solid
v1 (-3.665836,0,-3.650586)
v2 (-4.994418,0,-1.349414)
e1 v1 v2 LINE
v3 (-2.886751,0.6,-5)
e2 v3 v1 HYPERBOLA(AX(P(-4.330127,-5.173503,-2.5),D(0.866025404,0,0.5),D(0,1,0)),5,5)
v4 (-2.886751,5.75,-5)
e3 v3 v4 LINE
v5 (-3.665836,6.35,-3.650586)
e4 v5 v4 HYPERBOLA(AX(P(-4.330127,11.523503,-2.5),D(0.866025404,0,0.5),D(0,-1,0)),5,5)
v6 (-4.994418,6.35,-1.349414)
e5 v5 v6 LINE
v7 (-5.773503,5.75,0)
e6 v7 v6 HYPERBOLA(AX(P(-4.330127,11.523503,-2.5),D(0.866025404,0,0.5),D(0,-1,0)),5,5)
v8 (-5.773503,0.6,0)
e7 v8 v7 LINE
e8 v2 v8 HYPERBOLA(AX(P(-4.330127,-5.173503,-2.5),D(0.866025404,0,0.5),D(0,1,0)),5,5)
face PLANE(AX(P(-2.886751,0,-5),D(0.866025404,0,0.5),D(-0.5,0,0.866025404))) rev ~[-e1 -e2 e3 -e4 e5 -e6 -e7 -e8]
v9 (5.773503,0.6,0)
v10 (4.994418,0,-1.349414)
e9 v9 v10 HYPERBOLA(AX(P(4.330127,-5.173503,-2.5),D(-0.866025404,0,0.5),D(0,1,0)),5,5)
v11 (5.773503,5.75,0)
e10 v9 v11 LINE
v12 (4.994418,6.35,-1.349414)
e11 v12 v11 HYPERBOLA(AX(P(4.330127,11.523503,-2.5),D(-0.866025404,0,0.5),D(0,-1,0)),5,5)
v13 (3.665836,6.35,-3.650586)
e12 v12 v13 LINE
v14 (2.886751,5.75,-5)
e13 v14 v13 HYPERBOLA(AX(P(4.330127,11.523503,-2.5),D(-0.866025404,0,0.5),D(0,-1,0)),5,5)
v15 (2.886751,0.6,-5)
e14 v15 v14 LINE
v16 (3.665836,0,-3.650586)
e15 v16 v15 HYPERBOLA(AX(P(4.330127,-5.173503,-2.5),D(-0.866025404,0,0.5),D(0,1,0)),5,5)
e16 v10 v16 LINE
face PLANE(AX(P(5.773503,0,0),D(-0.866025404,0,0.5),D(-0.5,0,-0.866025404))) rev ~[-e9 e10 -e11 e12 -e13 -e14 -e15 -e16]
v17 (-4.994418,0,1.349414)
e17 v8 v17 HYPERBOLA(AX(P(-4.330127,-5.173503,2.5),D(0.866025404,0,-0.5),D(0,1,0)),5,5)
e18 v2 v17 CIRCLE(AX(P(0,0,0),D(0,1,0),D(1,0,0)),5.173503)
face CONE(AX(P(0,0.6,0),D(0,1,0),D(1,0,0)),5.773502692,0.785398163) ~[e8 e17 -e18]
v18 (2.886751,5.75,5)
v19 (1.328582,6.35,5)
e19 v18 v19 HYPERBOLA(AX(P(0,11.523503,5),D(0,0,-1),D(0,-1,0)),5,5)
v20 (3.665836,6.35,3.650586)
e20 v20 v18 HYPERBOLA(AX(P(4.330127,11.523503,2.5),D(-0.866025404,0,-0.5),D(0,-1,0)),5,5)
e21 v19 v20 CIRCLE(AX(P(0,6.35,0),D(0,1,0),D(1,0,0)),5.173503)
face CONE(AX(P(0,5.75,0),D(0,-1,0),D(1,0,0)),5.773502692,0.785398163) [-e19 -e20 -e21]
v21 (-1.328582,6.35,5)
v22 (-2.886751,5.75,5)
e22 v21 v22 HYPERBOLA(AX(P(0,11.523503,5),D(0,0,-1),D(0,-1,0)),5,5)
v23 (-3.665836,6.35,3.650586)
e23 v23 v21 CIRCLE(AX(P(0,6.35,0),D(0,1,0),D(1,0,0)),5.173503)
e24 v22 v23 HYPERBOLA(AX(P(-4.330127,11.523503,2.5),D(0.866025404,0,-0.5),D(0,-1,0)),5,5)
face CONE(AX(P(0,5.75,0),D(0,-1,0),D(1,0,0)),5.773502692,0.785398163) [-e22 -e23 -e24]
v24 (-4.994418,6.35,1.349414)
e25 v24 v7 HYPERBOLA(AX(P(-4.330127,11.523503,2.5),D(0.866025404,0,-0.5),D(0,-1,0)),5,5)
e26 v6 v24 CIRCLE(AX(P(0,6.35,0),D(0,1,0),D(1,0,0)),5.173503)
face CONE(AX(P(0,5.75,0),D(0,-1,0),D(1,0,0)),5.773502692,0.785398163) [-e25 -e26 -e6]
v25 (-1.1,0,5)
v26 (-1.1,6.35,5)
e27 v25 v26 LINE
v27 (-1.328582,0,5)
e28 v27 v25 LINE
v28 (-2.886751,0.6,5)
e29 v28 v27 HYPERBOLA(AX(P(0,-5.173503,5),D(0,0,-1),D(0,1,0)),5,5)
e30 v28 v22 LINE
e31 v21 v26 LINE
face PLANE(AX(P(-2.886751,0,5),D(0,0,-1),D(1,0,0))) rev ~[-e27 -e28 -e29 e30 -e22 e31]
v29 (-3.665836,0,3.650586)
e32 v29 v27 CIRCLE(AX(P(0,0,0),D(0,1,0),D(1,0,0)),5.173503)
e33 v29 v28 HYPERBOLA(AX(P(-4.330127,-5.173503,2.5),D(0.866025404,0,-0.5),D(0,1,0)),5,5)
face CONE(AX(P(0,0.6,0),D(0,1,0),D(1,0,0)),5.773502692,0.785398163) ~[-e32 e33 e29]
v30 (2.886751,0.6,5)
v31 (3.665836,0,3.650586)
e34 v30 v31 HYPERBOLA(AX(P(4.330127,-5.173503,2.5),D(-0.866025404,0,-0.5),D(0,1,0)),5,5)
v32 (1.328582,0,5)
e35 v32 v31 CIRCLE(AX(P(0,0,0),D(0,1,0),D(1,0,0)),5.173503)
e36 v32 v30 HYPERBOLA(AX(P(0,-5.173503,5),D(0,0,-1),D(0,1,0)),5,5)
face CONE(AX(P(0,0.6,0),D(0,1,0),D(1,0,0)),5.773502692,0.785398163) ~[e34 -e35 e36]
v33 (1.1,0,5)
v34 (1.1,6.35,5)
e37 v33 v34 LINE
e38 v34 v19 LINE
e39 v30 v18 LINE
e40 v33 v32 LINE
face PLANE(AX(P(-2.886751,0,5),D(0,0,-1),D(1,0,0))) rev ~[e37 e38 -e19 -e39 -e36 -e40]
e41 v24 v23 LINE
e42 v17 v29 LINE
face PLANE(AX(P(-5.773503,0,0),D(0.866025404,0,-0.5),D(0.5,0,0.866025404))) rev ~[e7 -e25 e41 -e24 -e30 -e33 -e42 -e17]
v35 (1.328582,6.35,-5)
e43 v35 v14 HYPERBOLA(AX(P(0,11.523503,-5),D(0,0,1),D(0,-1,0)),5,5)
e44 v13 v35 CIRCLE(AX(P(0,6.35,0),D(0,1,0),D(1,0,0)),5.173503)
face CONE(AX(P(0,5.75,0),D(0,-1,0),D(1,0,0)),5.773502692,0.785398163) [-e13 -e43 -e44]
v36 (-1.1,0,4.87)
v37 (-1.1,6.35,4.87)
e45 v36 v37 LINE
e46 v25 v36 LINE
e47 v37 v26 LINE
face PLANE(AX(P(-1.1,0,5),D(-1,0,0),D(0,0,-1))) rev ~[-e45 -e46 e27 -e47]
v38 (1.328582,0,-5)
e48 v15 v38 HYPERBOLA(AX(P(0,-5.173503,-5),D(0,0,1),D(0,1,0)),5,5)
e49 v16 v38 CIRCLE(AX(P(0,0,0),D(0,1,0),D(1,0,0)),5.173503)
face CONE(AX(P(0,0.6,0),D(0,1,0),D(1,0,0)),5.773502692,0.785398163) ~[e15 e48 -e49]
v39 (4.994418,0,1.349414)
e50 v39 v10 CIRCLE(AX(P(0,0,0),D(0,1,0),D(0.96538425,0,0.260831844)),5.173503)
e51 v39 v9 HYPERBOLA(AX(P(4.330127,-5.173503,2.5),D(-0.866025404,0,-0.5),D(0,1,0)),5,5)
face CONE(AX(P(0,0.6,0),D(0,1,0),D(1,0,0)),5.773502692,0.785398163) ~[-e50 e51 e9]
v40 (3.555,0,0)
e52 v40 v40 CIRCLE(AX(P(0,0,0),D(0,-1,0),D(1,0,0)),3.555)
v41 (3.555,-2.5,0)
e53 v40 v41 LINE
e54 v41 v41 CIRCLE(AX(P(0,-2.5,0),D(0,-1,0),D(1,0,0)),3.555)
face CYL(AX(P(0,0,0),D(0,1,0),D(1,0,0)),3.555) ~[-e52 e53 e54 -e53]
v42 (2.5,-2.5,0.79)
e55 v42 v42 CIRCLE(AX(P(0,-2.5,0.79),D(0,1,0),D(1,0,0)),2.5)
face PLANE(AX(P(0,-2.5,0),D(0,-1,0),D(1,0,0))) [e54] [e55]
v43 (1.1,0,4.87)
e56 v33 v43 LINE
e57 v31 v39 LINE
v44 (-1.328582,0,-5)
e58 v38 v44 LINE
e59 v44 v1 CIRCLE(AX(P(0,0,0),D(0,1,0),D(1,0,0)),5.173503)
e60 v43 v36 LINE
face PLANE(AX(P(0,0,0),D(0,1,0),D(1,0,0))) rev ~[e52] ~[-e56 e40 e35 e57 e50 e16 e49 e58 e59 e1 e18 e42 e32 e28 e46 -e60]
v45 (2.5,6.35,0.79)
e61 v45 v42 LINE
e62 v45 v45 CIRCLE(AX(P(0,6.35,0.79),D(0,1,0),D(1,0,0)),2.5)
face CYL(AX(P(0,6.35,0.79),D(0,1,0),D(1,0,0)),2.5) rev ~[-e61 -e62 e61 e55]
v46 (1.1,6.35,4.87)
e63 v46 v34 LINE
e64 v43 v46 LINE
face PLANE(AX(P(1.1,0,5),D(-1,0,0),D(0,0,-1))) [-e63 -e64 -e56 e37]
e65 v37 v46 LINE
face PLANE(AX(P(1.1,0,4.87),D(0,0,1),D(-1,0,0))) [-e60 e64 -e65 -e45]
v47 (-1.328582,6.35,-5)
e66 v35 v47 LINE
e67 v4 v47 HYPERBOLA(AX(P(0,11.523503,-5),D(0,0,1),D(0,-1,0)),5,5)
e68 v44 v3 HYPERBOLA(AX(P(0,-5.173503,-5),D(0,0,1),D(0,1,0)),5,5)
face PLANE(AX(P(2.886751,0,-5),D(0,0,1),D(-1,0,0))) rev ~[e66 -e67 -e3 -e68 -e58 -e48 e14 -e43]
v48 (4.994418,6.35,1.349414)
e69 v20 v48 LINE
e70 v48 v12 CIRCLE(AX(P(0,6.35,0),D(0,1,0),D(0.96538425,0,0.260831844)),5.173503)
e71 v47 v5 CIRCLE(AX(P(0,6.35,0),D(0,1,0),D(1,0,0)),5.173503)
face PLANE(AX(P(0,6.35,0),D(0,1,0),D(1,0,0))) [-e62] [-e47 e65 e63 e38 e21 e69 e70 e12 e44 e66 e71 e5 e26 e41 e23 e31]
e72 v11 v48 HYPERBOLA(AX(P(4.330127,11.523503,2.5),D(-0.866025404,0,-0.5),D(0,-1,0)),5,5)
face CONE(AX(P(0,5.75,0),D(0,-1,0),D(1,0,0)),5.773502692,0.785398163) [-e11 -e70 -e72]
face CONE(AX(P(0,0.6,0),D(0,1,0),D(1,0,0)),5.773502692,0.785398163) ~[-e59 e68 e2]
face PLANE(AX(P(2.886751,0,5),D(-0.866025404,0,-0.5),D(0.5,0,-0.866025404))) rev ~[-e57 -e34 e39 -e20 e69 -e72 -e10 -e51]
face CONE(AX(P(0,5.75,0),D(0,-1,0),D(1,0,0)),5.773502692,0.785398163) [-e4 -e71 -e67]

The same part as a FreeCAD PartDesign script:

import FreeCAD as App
import Part
import Sketcher

V = App.Vector
Q = App.Units.Quantity

doc = App.newDocument("Part")
body = doc.addObject("PartDesign::Body", "Body")

sketch1 = body.newObject("Sketcher::SketchObject", "Sketch")
sketch1.AttachmentSupport = (doc.getObject("XZ_Plane"), [""])
sketch1.MapMode = "FlatFace"
sketch1.addGeometry(Part.LineSegment(V(6, 0, 0), V(3, -5, 0)), False)
sketch1.addGeometry(Part.LineSegment(V(3, -5, 0), V(-3, -5, 0)), False)
sketch1.addGeometry(Part.LineSegment(V(-3, -5, 0), V(-6, 0, 0)), False)
sketch1.addGeometry(Part.LineSegment(V(-6, 0, 0), V(-3, 5, 0)), False)
sketch1.addGeometry(Part.LineSegment(V(-3, 5, 0), V(3, 5, 0)), False)
sketch1.addGeometry(Part.LineSegment(V(3, 5, 0), V(6, 0, 0)), False)
sketch1.addConstraint(Sketcher.Constraint("Coincident", 0, 2, 1, 1))
sketch1.addConstraint(Sketcher.Constraint("Coincident", 1, 2, 2, 1))
sketch1.addConstraint(Sketcher.Constraint("Coincident", 2, 2, 3, 1))
sketch1.addConstraint(Sketcher.Constraint("Coincident", 3, 2, 4, 1))
sketch1.addConstraint(Sketcher.Constraint("Coincident", 4, 2, 5, 1))
sketch1.addConstraint(Sketcher.Constraint("Coincident", 5, 2, 0, 1))
sketch1.addConstraint(Sketcher.Constraint("Horizontal", 1))
sketch1.addConstraint(Sketcher.Constraint("Horizontal", 4))
sketch1.addConstraint(Sketcher.Constraint("Symmetric", 0, 2, 3, 2, -1, 1))
sketch1.addConstraint(Sketcher.Constraint("Symmetric", 2, 2, 5, 2, -1, 1))
sketch1.addConstraint(Sketcher.Constraint("PointOnObject", 2, 2, -1))
sketch1.addConstraint(Sketcher.Constraint("Parallel", 2, 5))
sketch1.addConstraint(Sketcher.Constraint("Vertical", 1, 2, 3, 2))
sketch1.addConstraint(Sketcher.Constraint("Angle", 0, Q("-120 deg")))
sketch1.addConstraint(Sketcher.Constraint("DistanceY", 0, 2, -1, 1, 5.0))
sketch1.addConstraint(Sketcher.Constraint("DistanceX", 1, 2, 1, 1, 5.773503))
pad1 = body.newObject("PartDesign::Pad", "Pad")
pad1.Profile = sketch1
pad1.Length = 6.35
pad1.Reversed = True

sketch2 = body.newObject("Sketcher::SketchObject", "Sketch001")
sketch2.AttachmentSupport = (doc.getObject("XZ_Plane"), [""])
sketch2.MapMode = "FlatFace"
sketch2.addGeometry(Part.Circle(V(0, 0, 0), V(0, 0, 1), 3.6), False)
sketch2.addConstraint(Sketcher.Constraint("Coincident", 0, 3, -1, 1))
sketch2.addConstraint(Sketcher.Constraint("Diameter", 0, 7.11))
pad2 = body.newObject("PartDesign::Pad", "Pad001")
pad2.Profile = sketch2
pad2.Length = 2.5

sketch3 = body.newObject("Sketcher::SketchObject", "Sketch002")
sketch3.AttachmentSupport = (doc.getObject("XZ_Plane"), [""])
sketch3.MapMode = "FlatFace"
sketch3.AttachmentOffset = App.Placement(V(0, 0, -6.35), App.Rotation())
sketch3.addGeometry(Part.Circle(V(0, 0.8, 0), V(0, 0, 1), 2.5), False)
sketch3.addConstraint(Sketcher.Constraint("PointOnObject", 0, 3, -2))
sketch3.addConstraint(Sketcher.Constraint("Diameter", 0, 5.0))
sketch3.addConstraint(Sketcher.Constraint("DistanceY", -1, 1, 0, 3, 0.79))
pocket1 = body.newObject("PartDesign::Pocket", "Pocket")
pocket1.Profile = sketch3
pocket1.Type = "ThroughAll"
pocket1.Reversed = True

sketch4 = body.newObject("Sketcher::SketchObject", "Sketch003")
sketch4.AttachmentSupport = (doc.getObject("XZ_Plane"), [""])
sketch4.MapMode = "FlatFace"
sketch4.addGeometry(Part.LineSegment(V(1.1, 4.87, 0), V(1.1, 5, 0)), False)
sketch4.addGeometry(Part.LineSegment(V(1.1, 5, 0), V(-1.1, 5, 0)), False)
sketch4.addGeometry(Part.LineSegment(V(-1.1, 5, 0), V(-1.1, 4.87, 0)), False)
sketch4.addGeometry(Part.LineSegment(V(-1.1, 4.87, 0), V(1.1, 4.87, 0)), False)
sketch4.addConstraint(Sketcher.Constraint("Coincident", 0, 2, 1, 1))
sketch4.addConstraint(Sketcher.Constraint("Coincident", 1, 2, 2, 1))
sketch4.addConstraint(Sketcher.Constraint("Coincident", 2, 2, 3, 1))
sketch4.addConstraint(Sketcher.Constraint("Coincident", 3, 2, 0, 1))
sketch4.addConstraint(Sketcher.Constraint("Vertical", 0))
sketch4.addConstraint(Sketcher.Constraint("Horizontal", 1))
sketch4.addConstraint(Sketcher.Constraint("Vertical", 2))
sketch4.addConstraint(Sketcher.Constraint("Horizontal", 3))
sketch4.addConstraint(Sketcher.Constraint("DistanceX", 1, 2, 1, 1, 2.2))
sketch4.addConstraint(Sketcher.Constraint("DistanceY", -1, 1, 0, 2, 5.0))
sketch4.addConstraint(Sketcher.Constraint("DistanceY", 0, 1, 0, 2, 0.13))
sketch4.addConstraint(Sketcher.Constraint("DistanceX", -1, 1, 0, 2, 1.1))
pocket2 = body.newObject("PartDesign::Pocket", "Pocket001")
pocket2.Profile = sketch4
pocket2.Type = "ThroughAll"

sketch5 = body.newObject("Sketcher::SketchObject", "Sketch004")
sketch5.AttachmentSupport = (doc.getObject("XY_Plane"), [""])
sketch5.MapMode = "FlatFace"
sketch5.addGeometry(Part.LineSegment(V(5.8, 6.3, 0), V(5.2, 6.3, 0)), False)
sketch5.addGeometry(Part.LineSegment(V(5.2, 6.3, 0), V(5.8, 5.8, 0)), False)
sketch5.addGeometry(Part.LineSegment(V(5.8, 5.8, 0), V(5.8, 6.3, 0)), False)
sketch5.addGeometry(Part.LineSegment(V(5.8, 0.6, 0), V(5.2, 0, 0)), False)
sketch5.addGeometry(Part.LineSegment(V(5.2, 0, 0), V(5.8, 0, 0)), False)
sketch5.addGeometry(Part.LineSegment(V(5.8, 0, 0), V(5.8, 0.6, 0)), False)
sketch5.addConstraint(Sketcher.Constraint("Coincident", 0, 2, 1, 1))
sketch5.addConstraint(Sketcher.Constraint("Coincident", 1, 2, 2, 1))
sketch5.addConstraint(Sketcher.Constraint("Coincident", 2, 2, 0, 1))
sketch5.addConstraint(Sketcher.Constraint("Coincident", 3, 2, 4, 1))
sketch5.addConstraint(Sketcher.Constraint("Coincident", 4, 2, 5, 1))
sketch5.addConstraint(Sketcher.Constraint("Coincident", 5, 2, 3, 1))
sketch5.addConstraint(Sketcher.Constraint("Horizontal", 0))
sketch5.addConstraint(Sketcher.Constraint("Vertical", 2))
sketch5.addConstraint(Sketcher.Constraint("Horizontal", 4))
sketch5.addConstraint(Sketcher.Constraint("Vertical", 5))
sketch5.addConstraint(Sketcher.Constraint("PointOnObject", 3, 2, -1))
sketch5.addConstraint(Sketcher.Constraint("Perpendicular", 1, 3))
sketch5.addConstraint(Sketcher.Constraint("Vertical", 0, 2, 3, 2))
sketch5.addConstraint(Sketcher.Constraint("Vertical", 2, 2, 4, 2))
sketch5.addConstraint(Sketcher.Constraint("Equal", 4, 2))
sketch5.addConstraint(Sketcher.Constraint("DistanceX", 0, 2, 0, 1, 0.6))
sketch5.addConstraint(Sketcher.Constraint("DistanceY", -1, 1, 0, 2, 6.35))
sketch5.addConstraint(Sketcher.Constraint("DistanceX", -1, 1, 0, 2, 5.173503))
groove = body.newObject("PartDesign::Groove", "Groove")
groove.Profile = sketch5
groove.ReferenceAxis = (sketch5, ["V_Axis"])
groove.Angle = 360

doc.recompute()
